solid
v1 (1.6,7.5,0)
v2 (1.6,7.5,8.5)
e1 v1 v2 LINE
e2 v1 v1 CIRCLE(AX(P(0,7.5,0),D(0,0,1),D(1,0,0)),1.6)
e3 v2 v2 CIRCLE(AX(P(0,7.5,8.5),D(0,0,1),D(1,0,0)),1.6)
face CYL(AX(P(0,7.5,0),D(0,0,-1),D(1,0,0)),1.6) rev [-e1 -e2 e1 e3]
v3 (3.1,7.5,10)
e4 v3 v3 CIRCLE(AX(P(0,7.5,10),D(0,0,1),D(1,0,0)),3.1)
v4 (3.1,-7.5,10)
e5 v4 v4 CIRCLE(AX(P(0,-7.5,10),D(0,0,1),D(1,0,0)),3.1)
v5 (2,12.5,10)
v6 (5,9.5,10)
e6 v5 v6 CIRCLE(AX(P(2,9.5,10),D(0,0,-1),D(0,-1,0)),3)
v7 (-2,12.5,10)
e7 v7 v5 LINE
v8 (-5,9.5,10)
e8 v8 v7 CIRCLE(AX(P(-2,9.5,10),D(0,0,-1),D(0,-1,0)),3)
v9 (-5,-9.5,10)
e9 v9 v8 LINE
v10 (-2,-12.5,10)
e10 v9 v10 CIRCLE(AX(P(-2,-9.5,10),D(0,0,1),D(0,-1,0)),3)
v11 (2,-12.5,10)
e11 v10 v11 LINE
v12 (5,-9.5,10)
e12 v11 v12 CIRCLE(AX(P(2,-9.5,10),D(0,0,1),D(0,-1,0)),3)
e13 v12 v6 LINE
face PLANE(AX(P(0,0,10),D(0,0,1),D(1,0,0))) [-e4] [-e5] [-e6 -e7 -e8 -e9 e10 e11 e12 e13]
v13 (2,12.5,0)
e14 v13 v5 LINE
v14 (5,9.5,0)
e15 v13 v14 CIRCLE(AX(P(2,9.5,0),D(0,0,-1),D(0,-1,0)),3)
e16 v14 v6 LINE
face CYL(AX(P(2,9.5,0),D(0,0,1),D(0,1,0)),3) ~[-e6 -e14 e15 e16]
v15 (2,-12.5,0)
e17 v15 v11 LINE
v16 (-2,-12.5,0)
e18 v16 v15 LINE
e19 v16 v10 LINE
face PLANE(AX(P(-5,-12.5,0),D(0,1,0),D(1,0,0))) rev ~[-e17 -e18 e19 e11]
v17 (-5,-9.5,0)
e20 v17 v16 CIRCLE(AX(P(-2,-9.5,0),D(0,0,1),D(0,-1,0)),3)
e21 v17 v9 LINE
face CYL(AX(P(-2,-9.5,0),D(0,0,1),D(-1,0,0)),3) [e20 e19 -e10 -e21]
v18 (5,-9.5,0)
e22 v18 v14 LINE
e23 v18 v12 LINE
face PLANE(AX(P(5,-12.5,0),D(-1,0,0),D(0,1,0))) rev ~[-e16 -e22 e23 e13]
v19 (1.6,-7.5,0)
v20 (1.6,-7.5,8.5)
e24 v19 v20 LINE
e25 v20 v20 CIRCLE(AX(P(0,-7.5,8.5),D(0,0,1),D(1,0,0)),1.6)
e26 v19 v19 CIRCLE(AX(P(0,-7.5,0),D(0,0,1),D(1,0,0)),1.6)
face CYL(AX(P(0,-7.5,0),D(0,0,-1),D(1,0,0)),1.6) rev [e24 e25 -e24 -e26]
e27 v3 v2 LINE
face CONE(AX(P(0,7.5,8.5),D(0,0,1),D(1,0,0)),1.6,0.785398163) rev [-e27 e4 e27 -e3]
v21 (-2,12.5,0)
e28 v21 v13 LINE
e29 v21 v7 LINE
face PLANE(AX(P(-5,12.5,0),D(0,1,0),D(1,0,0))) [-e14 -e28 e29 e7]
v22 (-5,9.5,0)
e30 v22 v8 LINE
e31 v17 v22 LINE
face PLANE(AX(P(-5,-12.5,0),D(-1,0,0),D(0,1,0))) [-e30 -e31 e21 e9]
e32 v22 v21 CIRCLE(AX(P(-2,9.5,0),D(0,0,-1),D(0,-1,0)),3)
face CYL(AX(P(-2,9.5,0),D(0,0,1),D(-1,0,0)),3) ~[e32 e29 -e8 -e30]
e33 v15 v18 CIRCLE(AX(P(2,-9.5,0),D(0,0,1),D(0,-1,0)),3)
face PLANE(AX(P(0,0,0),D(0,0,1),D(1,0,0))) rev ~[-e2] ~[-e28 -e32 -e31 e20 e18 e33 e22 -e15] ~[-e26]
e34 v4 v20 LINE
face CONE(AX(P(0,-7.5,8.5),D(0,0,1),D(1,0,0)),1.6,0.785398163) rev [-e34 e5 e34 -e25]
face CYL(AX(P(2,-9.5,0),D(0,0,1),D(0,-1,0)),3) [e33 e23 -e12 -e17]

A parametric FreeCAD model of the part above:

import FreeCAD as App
import Part
import Sketcher
from FreeCAD import Vector
Q = App.Units.Quantity


def edges_at(feature, points):
    """Names of the edges that pass closest to the given points."""
    edges = feature.Shape.Edges
    near = lambda p: min(range(len(edges)), key=lambda i: edges[i].distToShape(Part.Vertex(*p))[0])
    return sorted({f"Edge{near(p) + 1}" for p in points})


def add_polygon(sketch, points):
    """Adds a closed chain of lines whose ends are joined by coincident constraints."""
    first, n = sketch.GeometryCount, len(points)
    for a, b in zip(points, points[1:] + points[:1]):
        sketch.addGeometry(Part.LineSegment(App.Vector(*a, 0), App.Vector(*b, 0)), False)
    for i in range(n):
        sketch.addConstraint(Sketcher.Constraint("Coincident", first + i, 2, first + (i + 1) % n, 1))

doc = App.newDocument("Part")
body = doc.addObject("PartDesign::Body", "Body")

sketch1 = body.newObject("Sketcher::SketchObject", "Sketch")
sketch1.AttachmentSupport = (doc.getObject("XY_Plane"), [""])
sketch1.MapMode = "FlatFace"
add_polygon(sketch1, [(-5, 12.5), (-5, -12.5), (5, -12.5), (5, 12.5)])
sketch1.addGeometry(Part.Circle(Vector(0, -7.5, 0), Vector(0, 0, 1), 1.6), False)
sketch1.addGeometry(Part.Circle(Vector(0, 7.5, 0), Vector(0, 0, 1), 1.6), False)
sketch1.addConstraint(Sketcher.Constraint("Vertical", 0))
sketch1.addConstraint(Sketcher.Constraint("Horizontal", 1))
sketch1.addConstraint(Sketcher.Constraint("Vertical", 2))
sketch1.addConstraint(Sketcher.Constraint("Horizontal", 3))
sketch1.addConstraint(Sketcher.Constraint("Equal", 4, 5))
sketch1.addConstraint(Sketcher.Constraint("Symmetric", 4, 3, 5, 3, -1, 1))
sketch1.addConstraint(Sketcher.Constraint("Symmetric", 0, 2, 2, 2, -1, 1))
sketch1.addConstraint(Sketcher.Constraint("PointOnObject", 4, 3, -2))
sketch1.addConstraint(Sketcher.Constraint("Diameter", 4, Q("3.2 mm")))
sketch1.addConstraint(Sketcher.Constraint("DistanceX", 1, 1, 1, 2, Q("10 mm")))
sketch1.addConstraint(Sketcher.Constraint("DistanceY", 0, 2, 0, 1, Q("25 mm")))
sketch1.addConstraint(Sketcher.Constraint("DistanceY", 4, 3, 5, 3, Q("15 mm")))
pad1 = body.newObject("PartDesign::Pad", "Pad")
pad1.Profile = sketch1
pad1.Length = 10
doc.recompute()

fillet = body.newObject("PartDesign::Fillet", "Fillet")
fillet.Base = (pad1, edges_at(pad1, [
    (-5, 12.5, 5),
    (-5, -12.5, 5),
    (5, -12.5, 5),
    (5, 12.5, 5),
]))
fillet.Radius = 3
doc.recompute()

chamfer = body.newObject("PartDesign::Chamfer", "Chamfer")
chamfer.Base = (fillet, edges_at(fillet, [(-1.6, 7.5, 10), (-1.6, -7.5, 10)]))
chamfer.Size = 1.5

doc.recompute()
